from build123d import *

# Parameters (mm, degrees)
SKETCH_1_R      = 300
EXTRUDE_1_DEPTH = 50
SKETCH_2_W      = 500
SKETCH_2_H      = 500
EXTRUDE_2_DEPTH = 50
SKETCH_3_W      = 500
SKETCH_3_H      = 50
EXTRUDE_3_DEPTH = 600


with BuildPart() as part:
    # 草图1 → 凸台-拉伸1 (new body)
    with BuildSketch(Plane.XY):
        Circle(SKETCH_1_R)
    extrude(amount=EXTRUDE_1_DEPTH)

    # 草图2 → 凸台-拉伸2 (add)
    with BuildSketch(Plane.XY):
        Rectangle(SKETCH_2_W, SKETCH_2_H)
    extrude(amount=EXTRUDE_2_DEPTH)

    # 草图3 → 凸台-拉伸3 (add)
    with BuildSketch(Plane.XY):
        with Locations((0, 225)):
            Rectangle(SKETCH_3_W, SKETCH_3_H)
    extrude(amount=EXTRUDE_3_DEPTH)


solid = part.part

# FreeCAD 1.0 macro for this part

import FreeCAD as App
import Part
import Sketcher
from FreeCAD import Vector


def add_polygon(sketch, points):
    """Adds a closed chain of lines whose ends are joined by coincident constraints."""
    first, n = sketch.GeometryCount, len(points)
    for a, b in zip(points, points[1:] + points[:1]):
        sketch.addGeometry(Part.LineSegment(App.Vector(*a, 0), App.Vector(*b, 0)), False)
    for i in range(n):
        sketch.addConstraint(Sketcher.Constraint("Coincident", first + i, 2, first + (i + 1) % n, 1))

doc = App.newDocument("Part")
body = doc.addObject("PartDesign::Body", "Body")

# Sketch on XY plane
sketch1 = body.newObject("Sketcher::SketchObject", "Sketch")
sketch1.AttachmentSupport = (doc.getObject("XY_Plane"), [""])
sketch1.MapMode = "FlatFace"
sketch1.addGeometry(Part.Circle(Vector(0, 0, 0), Vector(0, 0, 1), 300), False)
sketch1.addConstraint([
    Sketcher.Constraint("Coincident", 0, 3, -1, 1),
    Sketcher.Constraint("Diameter", 0, 600.0),
])
pad1 = body.newObject("PartDesign::Pad", "Pad")
pad1.Profile = sketch1
pad1.Length = 50

# Sketch on XY plane
sketch2 = body.newObject("Sketcher::SketchObject", "Sketch001")
sketch2.AttachmentSupport = (doc.getObject("XY_Plane"), [""])
sketch2.MapMode = "FlatFace"
add_polygon(sketch2, [(-250, 250), (-250, -250), (250, -250), (250, 250)])  # lines 0-3
sketch2.addConstraint([
    Sketcher.Constraint("Vertical", 0),
    Sketcher.Constraint("Horizontal", 1),
    Sketcher.Constraint("Vertical", 2),
    Sketcher.Constraint("Horizontal", 3),
    Sketcher.Constraint("Symmetric", 0, 2, 2, 2, -1, 1),
    Sketcher.Constraint("Equal", 3, 0),
    Sketcher.Constraint("DistanceX", 1, 1, 1, 2, 500.0),
])
pad2 = body.newObject("PartDesign::Pad", "Pad001")
pad2.Profile = sketch2
pad2.Length = 50

# Sketch on XY plane
sketch3 = body.newObject("Sketcher::SketchObject", "Sketch002")
sketch3.AttachmentSupport = (doc.getObject("XY_Plane"), [""])
sketch3.MapMode = "FlatFace"
add_polygon(sketch3, [(-250, 250), (-250, 200), (250, 200), (250, 250)])  # lines 0-3
sketch3.addConstraint([
    Sketcher.Constraint("Vertical", 0),
    Sketcher.Constraint("Horizontal", 1),
    Sketcher.Constraint("Vertical", 2),
    Sketcher.Constraint("Horizontal", 3),
    Sketcher.Constraint("DistanceX", 1, 1, 1, 2, 500.0),
    Sketcher.Constraint("DistanceY", 0, 2, 0, 1, 50.0),
    Sketcher.Constraint("DistanceX", 0, 2, -1, 1, 250.0),
    Sketcher.Constraint("DistanceY", -1, 1, 0, 2, 200.0),
])
pad3 = body.newObject("PartDesign::Pad", "Pad002")
pad3.Profile = sketch3
pad3.Length = 600

doc.recompute()
